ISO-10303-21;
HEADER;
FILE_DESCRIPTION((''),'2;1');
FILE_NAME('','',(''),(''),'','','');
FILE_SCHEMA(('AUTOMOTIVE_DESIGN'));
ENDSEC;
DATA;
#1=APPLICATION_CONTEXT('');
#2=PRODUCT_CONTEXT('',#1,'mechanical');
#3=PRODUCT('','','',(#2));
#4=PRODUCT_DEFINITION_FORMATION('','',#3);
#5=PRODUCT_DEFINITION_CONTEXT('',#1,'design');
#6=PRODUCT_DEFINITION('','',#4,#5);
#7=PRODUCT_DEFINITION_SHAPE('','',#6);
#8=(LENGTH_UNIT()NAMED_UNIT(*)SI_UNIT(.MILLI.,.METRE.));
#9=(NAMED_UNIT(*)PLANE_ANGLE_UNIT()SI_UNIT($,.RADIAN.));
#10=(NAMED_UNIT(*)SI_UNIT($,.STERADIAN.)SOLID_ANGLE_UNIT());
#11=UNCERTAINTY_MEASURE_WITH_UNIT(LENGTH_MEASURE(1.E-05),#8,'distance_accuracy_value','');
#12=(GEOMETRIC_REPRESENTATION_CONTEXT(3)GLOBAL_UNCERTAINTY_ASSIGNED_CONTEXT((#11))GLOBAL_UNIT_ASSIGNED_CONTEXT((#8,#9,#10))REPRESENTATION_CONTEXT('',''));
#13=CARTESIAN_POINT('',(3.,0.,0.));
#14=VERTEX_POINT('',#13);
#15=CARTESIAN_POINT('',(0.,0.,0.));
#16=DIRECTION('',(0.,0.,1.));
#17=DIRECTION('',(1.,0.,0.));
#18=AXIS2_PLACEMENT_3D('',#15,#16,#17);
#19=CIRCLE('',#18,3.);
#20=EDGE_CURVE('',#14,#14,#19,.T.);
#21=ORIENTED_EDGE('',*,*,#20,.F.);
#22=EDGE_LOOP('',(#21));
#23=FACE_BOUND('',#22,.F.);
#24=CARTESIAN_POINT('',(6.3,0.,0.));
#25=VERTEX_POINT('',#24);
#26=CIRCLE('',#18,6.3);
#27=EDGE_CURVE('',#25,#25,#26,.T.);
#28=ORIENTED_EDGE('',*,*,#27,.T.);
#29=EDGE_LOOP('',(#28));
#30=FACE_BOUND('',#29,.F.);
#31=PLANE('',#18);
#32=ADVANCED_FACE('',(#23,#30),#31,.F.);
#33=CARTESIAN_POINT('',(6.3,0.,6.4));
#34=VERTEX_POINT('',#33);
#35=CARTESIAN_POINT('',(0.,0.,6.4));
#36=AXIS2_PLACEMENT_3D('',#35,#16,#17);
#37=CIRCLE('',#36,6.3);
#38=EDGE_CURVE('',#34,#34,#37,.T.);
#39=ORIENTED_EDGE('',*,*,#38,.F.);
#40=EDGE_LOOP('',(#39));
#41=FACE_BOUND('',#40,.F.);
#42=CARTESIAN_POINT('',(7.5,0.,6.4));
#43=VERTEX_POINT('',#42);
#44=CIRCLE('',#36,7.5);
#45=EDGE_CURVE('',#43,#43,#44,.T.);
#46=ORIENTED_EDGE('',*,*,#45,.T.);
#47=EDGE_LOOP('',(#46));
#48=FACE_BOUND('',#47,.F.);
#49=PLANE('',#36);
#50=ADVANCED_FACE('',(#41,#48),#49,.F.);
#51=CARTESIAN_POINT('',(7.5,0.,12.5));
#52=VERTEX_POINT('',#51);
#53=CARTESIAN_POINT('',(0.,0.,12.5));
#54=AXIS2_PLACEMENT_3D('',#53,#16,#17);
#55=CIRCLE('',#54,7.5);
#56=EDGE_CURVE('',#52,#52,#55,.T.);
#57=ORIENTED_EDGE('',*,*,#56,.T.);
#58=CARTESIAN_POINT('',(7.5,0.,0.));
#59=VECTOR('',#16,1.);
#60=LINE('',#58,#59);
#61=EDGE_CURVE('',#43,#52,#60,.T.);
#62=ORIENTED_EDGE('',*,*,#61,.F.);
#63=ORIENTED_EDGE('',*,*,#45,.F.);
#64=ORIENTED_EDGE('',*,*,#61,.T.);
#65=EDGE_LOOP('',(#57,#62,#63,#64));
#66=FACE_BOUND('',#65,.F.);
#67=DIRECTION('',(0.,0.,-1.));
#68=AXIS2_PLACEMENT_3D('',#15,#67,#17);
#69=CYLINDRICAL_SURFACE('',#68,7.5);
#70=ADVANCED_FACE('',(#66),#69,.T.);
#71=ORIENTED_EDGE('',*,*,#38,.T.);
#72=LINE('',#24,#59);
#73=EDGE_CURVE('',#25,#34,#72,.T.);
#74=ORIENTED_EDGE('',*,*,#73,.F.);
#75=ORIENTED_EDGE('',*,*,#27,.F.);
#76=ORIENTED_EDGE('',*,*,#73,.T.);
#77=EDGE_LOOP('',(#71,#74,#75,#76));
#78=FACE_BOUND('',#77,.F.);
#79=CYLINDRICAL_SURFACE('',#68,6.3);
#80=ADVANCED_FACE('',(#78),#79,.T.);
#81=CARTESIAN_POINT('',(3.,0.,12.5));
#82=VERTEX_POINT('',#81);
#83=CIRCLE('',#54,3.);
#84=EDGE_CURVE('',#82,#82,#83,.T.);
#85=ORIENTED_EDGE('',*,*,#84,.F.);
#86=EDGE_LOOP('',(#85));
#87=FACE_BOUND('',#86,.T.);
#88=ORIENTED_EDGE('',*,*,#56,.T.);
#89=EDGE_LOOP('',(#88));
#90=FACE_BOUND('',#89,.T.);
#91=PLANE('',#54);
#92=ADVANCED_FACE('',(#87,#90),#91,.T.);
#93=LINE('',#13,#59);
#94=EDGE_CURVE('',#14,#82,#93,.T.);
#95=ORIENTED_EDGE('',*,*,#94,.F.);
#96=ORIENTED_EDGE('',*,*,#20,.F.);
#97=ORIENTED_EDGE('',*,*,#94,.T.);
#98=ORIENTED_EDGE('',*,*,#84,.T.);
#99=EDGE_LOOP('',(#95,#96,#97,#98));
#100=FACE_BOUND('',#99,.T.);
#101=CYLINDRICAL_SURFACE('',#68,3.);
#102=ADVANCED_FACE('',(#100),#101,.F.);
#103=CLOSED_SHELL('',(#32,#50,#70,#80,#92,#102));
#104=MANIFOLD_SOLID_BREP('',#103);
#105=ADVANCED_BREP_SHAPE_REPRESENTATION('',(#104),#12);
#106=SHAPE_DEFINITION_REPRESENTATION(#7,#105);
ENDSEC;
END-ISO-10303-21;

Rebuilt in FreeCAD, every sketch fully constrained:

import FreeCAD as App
import Part
import Sketcher
from FreeCAD import Vector

doc = App.newDocument("Part")
params = doc.addObject("Spreadsheet::Sheet", "Params")
for row, (alias, value) in enumerate([
    ("sketch1_diameter", "15 mm"),
    ("sketch1_diameter2", "6 mm"),
    ("pad1_length", "12.5 mm"),
    ("sketch2_diameter", "15 mm"),
    ("sketch2_diameter2", "12.6 mm"),
    ("pocket1_length", "6.4 mm"),
], start=1):
    params.set(f"A{row}", alias)
    params.set(f"B{row}", "=" + value)
    params.setAlias(f"B{row}", alias)

body = doc.addObject("PartDesign::Body", "Body")

sketch1 = doc.addObject("Sketcher::SketchObject", "Sketch")
body.addObject(sketch1)
sketch1.AttachmentSupport = (doc.XY_Plane, [""])
sketch1.MapMode = "FlatFace"
sketch1.addGeometry(Part.Circle(Vector(0, 0, 0), Vector(0, 0, 1), 7.5), False)
sketch1.addGeometry(Part.Circle(Vector(0, 0, 0), Vector(0, 0, 1), 3), False)
sketch1.addConstraint(Sketcher.Constraint("Coincident", 0, 3, -1, 1))
sketch1.addConstraint(Sketcher.Constraint("Coincident", 1, 3, -1, 1))
sketch1.addConstraint(Sketcher.Constraint("Diameter", 0, 15.0))
sketch1.addConstraint(Sketcher.Constraint("Diameter", 1, 6.0))
sketch1.setExpression("Constraints[2]", "Params.sketch1_diameter")
sketch1.setExpression("Constraints[3]", "Params.sketch1_diameter2")
pad1 = doc.addObject("PartDesign::Pad", "Pad")
body.addObject(pad1)
pad1.Profile = sketch1
pad1.setExpression("Length", "Params.pad1_length")

sketch2 = doc.addObject("Sketcher::SketchObject", "Sketch001")
body.addObject(sketch2)
sketch2.AttachmentSupport = (doc.XY_Plane, [""])
sketch2.MapMode = "FlatFace"
sketch2.addGeometry(Part.Circle(Vector(0, 0, 0), Vector(0, 0, 1), 7.5), False)
sketch2.addGeometry(Part.Circle(Vector(0, 0, 0), Vector(0, 0, 1), 6.3), False)
sketch2.addConstraint(Sketcher.Constraint("Coincident", 0, 3, -1, 1))
sketch2.addConstraint(Sketcher.Constraint("Coincident", 1, 3, -1, 1))
sketch2.addConstraint(Sketcher.Constraint("Diameter", 0, 15.0))
sketch2.addConstraint(Sketcher.Constraint("Diameter", 1, 12.6))
sketch2.setExpression("Constraints[2]", "Params.sketch2_diameter")
sketch2.setExpression("Constraints[3]", "Params.sketch2_diameter2")
pocket1 = doc.addObject("PartDesign::Pocket", "Pocket")
body.addObject(pocket1)
pocket1.Profile = sketch2
pocket1.setExpression("Length", "Params.pocket1_length")
pocket1.Reversed = True

doc.recompute()
